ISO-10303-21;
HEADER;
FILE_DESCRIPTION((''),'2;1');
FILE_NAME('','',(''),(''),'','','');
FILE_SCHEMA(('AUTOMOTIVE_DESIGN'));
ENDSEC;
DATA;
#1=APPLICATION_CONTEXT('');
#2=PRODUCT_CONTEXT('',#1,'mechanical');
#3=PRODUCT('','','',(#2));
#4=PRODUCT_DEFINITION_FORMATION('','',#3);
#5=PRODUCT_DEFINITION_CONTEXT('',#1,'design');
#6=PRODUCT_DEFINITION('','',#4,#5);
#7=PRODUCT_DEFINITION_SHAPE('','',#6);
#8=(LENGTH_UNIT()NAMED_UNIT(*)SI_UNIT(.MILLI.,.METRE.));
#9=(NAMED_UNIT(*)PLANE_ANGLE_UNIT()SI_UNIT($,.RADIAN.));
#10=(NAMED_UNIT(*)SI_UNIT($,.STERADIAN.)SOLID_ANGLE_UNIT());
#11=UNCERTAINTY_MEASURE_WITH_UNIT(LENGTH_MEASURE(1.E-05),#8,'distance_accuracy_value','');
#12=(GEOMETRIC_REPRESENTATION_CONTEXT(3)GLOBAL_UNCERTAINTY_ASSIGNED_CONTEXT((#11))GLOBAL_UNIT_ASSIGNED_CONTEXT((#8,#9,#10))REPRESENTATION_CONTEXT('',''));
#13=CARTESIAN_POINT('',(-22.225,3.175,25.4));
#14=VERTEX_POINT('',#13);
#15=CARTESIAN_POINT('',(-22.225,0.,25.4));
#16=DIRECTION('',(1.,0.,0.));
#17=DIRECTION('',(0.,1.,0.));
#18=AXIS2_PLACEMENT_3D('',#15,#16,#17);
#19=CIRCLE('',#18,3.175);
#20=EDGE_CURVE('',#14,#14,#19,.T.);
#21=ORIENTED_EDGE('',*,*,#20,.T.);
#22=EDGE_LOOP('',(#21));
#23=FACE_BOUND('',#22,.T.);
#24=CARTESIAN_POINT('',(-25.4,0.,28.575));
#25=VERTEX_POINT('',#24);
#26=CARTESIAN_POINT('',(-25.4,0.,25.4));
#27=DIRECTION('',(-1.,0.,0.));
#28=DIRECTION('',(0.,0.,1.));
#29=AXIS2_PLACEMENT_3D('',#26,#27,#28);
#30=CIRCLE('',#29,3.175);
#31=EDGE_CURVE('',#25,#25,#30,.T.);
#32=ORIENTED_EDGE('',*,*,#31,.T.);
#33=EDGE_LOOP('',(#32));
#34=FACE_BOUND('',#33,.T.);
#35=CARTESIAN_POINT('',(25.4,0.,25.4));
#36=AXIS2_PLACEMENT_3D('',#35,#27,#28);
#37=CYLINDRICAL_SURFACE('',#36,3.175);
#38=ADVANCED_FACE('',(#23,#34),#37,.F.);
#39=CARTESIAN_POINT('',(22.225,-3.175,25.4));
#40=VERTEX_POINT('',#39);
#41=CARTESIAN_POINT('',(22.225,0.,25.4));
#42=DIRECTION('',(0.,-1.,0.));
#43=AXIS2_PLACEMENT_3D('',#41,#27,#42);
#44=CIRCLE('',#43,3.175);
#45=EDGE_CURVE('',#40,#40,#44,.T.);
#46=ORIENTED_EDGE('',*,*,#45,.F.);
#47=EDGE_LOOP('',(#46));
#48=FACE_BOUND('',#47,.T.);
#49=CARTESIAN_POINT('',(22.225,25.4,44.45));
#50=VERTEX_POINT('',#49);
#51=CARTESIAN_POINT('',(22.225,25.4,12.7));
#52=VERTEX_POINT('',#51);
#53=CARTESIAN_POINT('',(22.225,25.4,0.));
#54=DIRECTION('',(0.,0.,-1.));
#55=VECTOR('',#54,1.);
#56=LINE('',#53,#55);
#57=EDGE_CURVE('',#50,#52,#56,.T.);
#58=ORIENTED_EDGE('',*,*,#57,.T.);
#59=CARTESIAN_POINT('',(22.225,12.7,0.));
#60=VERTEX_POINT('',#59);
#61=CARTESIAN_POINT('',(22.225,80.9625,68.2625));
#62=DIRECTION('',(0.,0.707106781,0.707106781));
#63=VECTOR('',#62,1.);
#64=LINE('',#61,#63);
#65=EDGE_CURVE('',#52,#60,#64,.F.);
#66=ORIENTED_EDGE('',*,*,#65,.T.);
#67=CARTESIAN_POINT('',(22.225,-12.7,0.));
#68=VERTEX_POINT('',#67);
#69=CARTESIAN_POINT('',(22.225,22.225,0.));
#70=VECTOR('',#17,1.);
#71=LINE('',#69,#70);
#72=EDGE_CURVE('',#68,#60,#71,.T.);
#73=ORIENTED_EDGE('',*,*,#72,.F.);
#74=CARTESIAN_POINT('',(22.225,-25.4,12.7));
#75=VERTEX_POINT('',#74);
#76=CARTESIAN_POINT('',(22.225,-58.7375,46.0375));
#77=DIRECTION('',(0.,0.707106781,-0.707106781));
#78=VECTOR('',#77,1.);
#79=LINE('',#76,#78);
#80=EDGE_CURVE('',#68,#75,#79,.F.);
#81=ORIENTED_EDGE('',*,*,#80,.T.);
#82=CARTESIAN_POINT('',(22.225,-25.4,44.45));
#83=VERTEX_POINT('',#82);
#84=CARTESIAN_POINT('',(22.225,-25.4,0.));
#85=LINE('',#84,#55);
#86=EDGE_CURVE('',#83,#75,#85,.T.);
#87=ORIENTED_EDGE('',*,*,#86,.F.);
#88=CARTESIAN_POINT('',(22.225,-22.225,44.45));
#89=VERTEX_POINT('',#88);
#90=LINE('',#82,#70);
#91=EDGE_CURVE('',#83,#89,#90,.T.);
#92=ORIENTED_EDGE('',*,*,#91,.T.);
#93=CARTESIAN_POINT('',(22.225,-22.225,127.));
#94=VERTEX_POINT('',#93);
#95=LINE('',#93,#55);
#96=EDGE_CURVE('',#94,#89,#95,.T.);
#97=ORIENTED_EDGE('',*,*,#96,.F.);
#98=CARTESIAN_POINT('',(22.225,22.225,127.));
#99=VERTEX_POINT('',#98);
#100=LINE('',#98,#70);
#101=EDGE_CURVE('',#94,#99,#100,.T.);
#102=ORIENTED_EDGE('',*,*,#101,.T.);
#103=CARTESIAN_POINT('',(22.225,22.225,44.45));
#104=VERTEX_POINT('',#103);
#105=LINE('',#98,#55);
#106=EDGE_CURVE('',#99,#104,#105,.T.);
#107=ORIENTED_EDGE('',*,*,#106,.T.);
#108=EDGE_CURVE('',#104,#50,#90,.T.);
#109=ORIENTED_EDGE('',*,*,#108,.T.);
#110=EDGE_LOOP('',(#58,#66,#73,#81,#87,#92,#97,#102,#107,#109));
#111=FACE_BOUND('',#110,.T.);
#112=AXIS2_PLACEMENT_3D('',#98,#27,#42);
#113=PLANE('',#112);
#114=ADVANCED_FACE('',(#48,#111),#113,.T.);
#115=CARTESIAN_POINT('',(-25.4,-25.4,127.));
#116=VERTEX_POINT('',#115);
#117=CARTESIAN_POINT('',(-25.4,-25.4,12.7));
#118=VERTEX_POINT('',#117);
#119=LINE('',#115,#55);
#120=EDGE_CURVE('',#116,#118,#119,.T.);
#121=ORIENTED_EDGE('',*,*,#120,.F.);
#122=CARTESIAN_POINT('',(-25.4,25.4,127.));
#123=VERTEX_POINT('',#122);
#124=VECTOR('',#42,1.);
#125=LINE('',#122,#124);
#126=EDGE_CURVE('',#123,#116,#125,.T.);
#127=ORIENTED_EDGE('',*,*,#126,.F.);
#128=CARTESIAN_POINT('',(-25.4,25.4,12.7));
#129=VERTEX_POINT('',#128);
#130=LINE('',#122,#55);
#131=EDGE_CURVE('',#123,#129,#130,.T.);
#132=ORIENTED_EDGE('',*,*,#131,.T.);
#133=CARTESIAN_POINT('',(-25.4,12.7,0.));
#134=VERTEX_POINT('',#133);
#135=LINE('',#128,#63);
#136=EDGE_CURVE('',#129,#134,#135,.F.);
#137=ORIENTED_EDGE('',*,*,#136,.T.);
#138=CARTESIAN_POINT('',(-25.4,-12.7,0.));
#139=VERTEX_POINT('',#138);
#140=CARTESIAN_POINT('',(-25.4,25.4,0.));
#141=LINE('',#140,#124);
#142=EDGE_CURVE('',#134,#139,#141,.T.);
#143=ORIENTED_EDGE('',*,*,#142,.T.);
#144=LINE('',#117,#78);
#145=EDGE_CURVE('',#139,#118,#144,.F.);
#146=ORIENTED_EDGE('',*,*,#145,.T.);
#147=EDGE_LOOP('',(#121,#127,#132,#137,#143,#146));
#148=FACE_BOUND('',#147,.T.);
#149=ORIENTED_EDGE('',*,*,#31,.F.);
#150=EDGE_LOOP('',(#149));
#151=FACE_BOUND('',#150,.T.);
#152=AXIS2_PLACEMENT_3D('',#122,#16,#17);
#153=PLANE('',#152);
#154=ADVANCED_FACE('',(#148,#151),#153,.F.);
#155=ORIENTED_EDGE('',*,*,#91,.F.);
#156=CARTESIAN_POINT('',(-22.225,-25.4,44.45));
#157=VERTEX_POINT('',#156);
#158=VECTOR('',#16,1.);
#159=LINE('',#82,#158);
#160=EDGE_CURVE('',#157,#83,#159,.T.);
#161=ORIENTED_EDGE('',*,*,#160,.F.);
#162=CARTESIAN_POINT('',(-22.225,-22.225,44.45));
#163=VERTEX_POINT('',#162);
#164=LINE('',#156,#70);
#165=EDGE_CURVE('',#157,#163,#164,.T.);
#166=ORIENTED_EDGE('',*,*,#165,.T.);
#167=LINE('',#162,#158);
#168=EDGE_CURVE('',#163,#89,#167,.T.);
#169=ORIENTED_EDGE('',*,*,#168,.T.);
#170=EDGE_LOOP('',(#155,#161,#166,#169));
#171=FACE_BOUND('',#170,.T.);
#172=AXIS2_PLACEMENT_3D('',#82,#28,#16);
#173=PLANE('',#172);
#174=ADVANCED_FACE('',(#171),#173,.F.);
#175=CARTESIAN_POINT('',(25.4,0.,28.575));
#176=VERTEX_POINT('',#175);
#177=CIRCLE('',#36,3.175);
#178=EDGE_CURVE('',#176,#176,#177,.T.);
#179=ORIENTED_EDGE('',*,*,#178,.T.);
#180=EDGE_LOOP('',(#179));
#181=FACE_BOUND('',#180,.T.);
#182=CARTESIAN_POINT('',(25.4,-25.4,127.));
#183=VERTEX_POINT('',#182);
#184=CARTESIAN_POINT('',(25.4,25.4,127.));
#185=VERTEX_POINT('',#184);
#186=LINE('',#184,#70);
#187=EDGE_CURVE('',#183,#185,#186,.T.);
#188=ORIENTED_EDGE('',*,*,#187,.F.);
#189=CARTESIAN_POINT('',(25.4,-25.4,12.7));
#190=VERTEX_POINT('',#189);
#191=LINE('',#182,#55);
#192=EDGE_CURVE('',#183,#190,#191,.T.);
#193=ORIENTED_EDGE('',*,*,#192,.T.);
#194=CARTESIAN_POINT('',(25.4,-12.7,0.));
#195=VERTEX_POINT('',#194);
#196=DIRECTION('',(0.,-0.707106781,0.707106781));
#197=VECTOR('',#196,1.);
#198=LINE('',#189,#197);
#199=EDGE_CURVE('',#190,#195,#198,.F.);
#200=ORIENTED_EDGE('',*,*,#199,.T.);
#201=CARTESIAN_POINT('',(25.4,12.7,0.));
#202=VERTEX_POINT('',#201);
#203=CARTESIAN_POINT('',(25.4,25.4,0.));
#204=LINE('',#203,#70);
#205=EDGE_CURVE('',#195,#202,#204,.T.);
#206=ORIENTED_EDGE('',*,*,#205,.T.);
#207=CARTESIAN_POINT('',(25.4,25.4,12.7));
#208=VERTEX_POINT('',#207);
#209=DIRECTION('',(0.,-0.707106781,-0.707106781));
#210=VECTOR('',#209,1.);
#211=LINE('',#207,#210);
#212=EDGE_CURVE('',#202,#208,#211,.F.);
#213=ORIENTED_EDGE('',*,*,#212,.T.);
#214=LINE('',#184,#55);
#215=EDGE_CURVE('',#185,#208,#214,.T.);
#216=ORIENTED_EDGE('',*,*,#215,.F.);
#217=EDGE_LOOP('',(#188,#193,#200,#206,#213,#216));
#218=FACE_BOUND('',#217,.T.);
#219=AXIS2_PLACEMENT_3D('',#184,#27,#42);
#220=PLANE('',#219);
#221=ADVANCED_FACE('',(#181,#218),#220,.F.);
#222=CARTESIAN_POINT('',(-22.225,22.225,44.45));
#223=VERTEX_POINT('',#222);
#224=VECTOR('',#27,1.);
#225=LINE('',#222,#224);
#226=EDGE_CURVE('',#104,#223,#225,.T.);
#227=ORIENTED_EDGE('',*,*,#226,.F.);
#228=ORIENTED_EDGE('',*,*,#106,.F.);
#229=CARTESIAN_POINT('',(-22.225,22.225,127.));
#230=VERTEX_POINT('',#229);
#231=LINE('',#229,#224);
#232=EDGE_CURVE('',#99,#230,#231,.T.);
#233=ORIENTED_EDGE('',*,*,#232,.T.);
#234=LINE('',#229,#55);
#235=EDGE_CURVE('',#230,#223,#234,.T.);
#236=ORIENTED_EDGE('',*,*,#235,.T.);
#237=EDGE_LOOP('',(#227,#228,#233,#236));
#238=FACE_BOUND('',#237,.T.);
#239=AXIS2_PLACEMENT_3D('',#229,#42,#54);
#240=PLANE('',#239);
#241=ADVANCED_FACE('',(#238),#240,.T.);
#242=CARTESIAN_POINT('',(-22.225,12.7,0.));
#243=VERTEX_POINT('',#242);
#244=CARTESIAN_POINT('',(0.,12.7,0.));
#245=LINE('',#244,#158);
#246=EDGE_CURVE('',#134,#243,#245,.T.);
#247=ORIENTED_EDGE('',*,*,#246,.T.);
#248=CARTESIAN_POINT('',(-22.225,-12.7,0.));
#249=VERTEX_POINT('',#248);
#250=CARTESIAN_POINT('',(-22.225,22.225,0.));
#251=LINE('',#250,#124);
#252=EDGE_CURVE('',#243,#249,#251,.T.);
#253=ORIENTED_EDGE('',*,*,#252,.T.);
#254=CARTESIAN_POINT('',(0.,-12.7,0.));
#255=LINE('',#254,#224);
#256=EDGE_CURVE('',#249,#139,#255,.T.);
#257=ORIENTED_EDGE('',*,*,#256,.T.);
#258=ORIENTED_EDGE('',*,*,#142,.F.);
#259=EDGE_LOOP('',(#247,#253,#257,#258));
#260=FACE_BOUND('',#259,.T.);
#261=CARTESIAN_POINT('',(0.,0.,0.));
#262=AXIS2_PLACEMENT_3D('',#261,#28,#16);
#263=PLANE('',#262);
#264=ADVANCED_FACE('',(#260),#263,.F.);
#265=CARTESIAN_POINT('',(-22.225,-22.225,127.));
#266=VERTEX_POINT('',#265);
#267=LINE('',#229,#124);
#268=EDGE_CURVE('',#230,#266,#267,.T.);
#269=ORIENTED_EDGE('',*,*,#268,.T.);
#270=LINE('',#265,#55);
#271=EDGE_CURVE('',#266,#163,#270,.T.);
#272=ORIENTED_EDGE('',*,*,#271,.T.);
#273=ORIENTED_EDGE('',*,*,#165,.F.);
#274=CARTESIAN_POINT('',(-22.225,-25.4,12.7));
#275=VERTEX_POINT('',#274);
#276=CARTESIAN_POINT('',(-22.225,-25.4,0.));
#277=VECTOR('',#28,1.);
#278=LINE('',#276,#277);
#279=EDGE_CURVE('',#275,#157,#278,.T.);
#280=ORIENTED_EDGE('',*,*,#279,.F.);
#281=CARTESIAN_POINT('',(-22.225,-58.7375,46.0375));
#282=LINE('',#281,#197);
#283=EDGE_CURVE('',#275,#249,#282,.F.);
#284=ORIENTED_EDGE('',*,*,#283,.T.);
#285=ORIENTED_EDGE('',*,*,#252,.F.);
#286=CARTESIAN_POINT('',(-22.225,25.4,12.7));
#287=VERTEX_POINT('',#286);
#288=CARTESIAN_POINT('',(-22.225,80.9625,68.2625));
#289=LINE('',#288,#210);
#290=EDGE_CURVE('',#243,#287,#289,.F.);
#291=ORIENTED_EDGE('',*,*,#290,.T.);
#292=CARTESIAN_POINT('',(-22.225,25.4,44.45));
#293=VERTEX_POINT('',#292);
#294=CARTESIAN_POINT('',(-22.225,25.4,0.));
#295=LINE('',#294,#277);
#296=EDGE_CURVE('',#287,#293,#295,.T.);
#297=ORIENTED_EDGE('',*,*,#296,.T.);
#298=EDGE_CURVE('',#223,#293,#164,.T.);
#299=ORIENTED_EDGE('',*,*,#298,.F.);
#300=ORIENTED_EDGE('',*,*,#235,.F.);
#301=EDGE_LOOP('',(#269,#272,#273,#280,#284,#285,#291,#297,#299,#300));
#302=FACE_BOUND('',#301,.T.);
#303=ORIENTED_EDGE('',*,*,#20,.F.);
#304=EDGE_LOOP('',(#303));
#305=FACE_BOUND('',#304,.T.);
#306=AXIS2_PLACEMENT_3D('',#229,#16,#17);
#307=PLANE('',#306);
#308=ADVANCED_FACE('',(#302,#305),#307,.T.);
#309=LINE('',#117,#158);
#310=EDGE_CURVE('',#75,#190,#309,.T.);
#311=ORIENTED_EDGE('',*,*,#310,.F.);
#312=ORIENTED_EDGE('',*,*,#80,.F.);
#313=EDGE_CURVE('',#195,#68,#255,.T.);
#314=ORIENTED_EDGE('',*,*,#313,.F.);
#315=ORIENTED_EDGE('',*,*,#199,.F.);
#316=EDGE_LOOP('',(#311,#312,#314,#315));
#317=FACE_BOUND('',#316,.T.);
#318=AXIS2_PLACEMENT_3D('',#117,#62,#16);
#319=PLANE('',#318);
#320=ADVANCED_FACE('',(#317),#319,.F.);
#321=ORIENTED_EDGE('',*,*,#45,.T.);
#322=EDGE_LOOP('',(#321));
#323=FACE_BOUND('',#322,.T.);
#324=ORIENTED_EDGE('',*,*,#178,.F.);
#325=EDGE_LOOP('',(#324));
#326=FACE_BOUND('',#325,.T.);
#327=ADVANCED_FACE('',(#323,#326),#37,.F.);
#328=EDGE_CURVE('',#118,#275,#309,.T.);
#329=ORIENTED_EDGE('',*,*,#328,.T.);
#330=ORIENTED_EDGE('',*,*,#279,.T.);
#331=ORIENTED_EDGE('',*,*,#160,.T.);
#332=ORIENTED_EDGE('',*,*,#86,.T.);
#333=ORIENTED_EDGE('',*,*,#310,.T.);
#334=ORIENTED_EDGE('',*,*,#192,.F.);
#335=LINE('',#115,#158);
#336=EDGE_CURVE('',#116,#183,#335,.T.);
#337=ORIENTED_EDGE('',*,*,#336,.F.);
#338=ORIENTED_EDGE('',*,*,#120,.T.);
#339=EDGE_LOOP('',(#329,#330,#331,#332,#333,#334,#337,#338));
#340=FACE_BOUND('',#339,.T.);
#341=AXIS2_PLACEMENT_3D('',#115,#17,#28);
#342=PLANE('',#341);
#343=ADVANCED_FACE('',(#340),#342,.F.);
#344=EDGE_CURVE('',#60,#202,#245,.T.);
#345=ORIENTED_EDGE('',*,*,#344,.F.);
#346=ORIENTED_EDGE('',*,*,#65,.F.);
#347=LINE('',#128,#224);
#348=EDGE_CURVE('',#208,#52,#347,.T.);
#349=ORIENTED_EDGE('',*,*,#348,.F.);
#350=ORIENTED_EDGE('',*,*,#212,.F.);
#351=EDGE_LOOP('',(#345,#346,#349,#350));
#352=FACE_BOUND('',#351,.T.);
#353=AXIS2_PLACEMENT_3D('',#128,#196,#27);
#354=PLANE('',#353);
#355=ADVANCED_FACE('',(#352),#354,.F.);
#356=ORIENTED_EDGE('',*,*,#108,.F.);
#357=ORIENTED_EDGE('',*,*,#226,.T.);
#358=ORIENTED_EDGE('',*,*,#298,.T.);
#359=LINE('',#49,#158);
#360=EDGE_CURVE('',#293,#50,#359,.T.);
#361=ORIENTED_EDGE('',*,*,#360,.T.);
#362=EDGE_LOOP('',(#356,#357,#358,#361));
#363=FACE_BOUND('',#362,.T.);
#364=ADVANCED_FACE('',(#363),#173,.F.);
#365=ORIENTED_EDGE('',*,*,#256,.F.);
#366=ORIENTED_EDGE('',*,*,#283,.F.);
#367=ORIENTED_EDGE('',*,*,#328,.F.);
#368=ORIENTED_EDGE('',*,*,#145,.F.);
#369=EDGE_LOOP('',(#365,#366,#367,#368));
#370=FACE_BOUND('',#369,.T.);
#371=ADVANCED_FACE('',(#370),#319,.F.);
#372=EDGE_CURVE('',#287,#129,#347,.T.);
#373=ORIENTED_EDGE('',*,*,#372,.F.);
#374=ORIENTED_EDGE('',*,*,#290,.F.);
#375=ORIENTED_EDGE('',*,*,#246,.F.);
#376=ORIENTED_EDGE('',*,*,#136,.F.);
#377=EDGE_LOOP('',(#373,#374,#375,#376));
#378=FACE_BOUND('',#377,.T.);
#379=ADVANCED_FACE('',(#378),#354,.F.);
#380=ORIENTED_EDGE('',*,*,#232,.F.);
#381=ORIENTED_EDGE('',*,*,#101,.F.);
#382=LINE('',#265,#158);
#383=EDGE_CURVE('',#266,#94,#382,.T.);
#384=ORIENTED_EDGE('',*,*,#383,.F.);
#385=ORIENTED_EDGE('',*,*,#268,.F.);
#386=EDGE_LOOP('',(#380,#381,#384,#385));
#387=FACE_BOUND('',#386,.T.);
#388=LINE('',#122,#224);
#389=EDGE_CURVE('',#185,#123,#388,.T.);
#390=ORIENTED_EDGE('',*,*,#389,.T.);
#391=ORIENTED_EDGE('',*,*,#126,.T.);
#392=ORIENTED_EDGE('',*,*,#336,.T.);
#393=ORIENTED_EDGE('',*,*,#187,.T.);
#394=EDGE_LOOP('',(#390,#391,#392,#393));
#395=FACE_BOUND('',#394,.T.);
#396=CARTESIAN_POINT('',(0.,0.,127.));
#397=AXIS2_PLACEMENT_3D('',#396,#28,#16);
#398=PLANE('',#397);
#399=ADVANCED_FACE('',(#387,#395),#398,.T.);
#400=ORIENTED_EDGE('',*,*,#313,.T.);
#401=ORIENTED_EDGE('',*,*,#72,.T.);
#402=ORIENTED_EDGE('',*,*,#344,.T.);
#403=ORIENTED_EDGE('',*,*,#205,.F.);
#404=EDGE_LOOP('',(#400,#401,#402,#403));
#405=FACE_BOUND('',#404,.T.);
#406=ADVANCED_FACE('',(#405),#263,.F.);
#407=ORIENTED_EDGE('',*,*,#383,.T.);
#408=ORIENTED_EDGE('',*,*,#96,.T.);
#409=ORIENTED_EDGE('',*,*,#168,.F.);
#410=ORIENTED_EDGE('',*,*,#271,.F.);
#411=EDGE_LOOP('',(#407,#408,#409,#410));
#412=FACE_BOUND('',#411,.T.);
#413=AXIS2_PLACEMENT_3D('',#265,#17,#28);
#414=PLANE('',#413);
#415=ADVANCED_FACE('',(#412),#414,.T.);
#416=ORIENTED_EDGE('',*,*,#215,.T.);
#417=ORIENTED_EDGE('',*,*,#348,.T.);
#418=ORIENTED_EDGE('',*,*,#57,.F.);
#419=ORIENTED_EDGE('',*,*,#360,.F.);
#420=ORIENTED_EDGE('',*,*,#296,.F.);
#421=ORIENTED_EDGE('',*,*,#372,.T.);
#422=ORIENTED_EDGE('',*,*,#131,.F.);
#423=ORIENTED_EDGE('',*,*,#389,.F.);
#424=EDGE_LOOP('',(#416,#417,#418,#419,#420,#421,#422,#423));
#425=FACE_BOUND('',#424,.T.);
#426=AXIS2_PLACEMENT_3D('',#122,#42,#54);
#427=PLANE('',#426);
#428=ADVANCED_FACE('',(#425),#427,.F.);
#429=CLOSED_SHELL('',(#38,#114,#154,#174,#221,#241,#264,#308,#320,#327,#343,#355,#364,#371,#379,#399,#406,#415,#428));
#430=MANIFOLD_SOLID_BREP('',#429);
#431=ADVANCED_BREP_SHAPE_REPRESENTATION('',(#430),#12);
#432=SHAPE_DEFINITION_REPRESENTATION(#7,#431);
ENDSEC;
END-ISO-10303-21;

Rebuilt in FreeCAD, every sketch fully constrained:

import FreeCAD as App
import Part
import Sketcher
from FreeCAD import Vector
Q = App.Units.Quantity


def edges_at(feature, points):
    """Names of the edges that pass closest to the given points."""
    edges = feature.Shape.Edges
    near = lambda p: min(range(len(edges)), key=lambda i: edges[i].distToShape(Part.Vertex(*p))[0])
    return sorted({f"Edge{near(p) + 1}" for p in points})

doc = App.newDocument("Part")
body = doc.addObject("PartDesign::Body", "Body")

sketch1 = doc.addObject("Sketcher::SketchObject", "Sketch")
body.addObject(sketch1)
sketch1.AttachmentSupport = (doc.XY_Plane, [""])
sketch1.MapMode = "FlatFace"
sketch1.addGeometry([
    Part.LineSegment(Vector(-25.4, 25.4, 0), Vector(-25.4, -25.4, 0)),
    Part.LineSegment(Vector(-25.4, -25.4, 0), Vector(25.4, -25.4, 0)),
    Part.LineSegment(Vector(25.4, -25.4, 0), Vector(25.4, 25.4, 0)),
    Part.LineSegment(Vector(25.4, 25.4, 0), Vector(-25.4, 25.4, 0)),
    Part.LineSegment(Vector(22.225, -22.225, 0), Vector(-22.225, -22.225, 0)),
    Part.LineSegment(Vector(-22.225, -22.225, 0), Vector(-22.225, 22.225, 0)),
    Part.LineSegment(Vector(-22.225, 22.225, 0), Vector(22.225, 22.225, 0)),
    Part.LineSegment(Vector(22.225, 22.225, 0), Vector(22.225, -22.225, 0)),
], False)
sketch1.addConstraint([
    Sketcher.Constraint("Coincident", 0, 2, 1, 1),
    Sketcher.Constraint("Coincident", 1, 2, 2, 1),
    Sketcher.Constraint("Coincident", 2, 2, 3, 1),
    Sketcher.Constraint("Coincident", 3, 2, 0, 1),
    Sketcher.Constraint("Coincident", 4, 2, 5, 1),
    Sketcher.Constraint("Coincident", 5, 2, 6, 1),
    Sketcher.Constraint("Coincident", 6, 2, 7, 1),
    Sketcher.Constraint("Coincident", 7, 2, 4, 1),
    Sketcher.Constraint("Vertical", 0),
    Sketcher.Constraint("Horizontal", 1),
    Sketcher.Constraint("Vertical", 2),
    Sketcher.Constraint("Horizontal", 3),
    Sketcher.Constraint("Horizontal", 4),
    Sketcher.Constraint("Vertical", 5),
    Sketcher.Constraint("Horizontal", 6),
    Sketcher.Constraint("Vertical", 7),
    Sketcher.Constraint("Symmetric", 0, 2, 2, 2, -1, 1),
    Sketcher.Constraint("Symmetric", 4, 2, 6, 2, -1, 1),
    Sketcher.Constraint("Equal", 3, 0),
    Sketcher.Constraint("Equal", 6, 5),
    Sketcher.Constraint("DistanceX", 1, 1, 1, 2, Q("2 in")),
    Sketcher.Constraint("DistanceX", 4, 2, 4, 1, Q("1.75 in")),
])
pad1 = doc.addObject("PartDesign::Pad", "Pad")
body.addObject(pad1)
pad1.Profile = sketch1
pad1.Length = Q("5 in")

sketch2 = doc.addObject("Sketcher::SketchObject", "Sketch001")
body.addObject(sketch2)
sketch2.AttachmentSupport = (doc.YZ_Plane, [""])
sketch2.MapMode = "FlatFace"
sketch2.AttachmentOffset = App.Placement(Vector(0, 0, -1 * 25.4), App.Rotation())
sketch2.addGeometry(Part.Circle(Vector(0, 25.4, 0), Vector(0, 0, 1), 3.175), False)
sketch2.addConstraint([
    Sketcher.Constraint("PointOnObject", 0, 3, -2),
    Sketcher.Constraint("Diameter", 0, Q("0.25 in")),
    Sketcher.Constraint("DistanceY", -1, 1, 0, 3, Q("1 in")),
])
pocket1 = doc.addObject("PartDesign::Pocket", "Pocket")
body.addObject(pocket1)
pocket1.Profile = sketch2
pocket1.Type = "ThroughAll"
pocket1.Reversed = True

sketch3 = doc.addObject("Sketcher::SketchObject", "Sketch002")
body.addObject(sketch3)
sketch3.AttachmentSupport = (doc.XZ_Plane, [""])
sketch3.MapMode = "FlatFace"
sketch3.AttachmentOffset = App.Placement(Vector(0, 0, -1 * 25.4), App.Rotation())
sketch3.addGeometry([
    Part.LineSegment(Vector(-22.225, 0, 0), Vector(-22.225, 44.45, 0)),
    Part.LineSegment(Vector(-22.225, 44.45, 0), Vector(22.225, 44.45, 0)),
    Part.LineSegment(Vector(22.225, 44.45, 0), Vector(22.225, 0, 0)),
    Part.LineSegment(Vector(22.225, 0, 0), Vector(-22.225, 0, 0)),
], False)
sketch3.addConstraint([
    Sketcher.Constraint("Coincident", 0, 2, 1, 1),
    Sketcher.Constraint("Coincident", 1, 2, 2, 1),
    Sketcher.Constraint("Coincident", 2, 2, 3, 1),
    Sketcher.Constraint("Coincident", 3, 2, 0, 1),
    Sketcher.Constraint("Vertical", 0),
    Sketcher.Constraint("Horizontal", 1),
    Sketcher.Constraint("Vertical", 2),
    Sketcher.Constraint("Horizontal", 3),
    Sketcher.Constraint("Symmetric", 2, 2, 3, 2, -1, 1),
    Sketcher.Constraint("Equal", 3, 0),
    Sketcher.Constraint("DistanceX", 1, 1, 1, 2, Q("1.75 in")),
])
pocket2 = doc.addObject("PartDesign::Pocket", "Pocket001")
body.addObject(pocket2)
pocket2.Profile = sketch3
pocket2.Type = "ThroughAll"
pocket2.Reversed = True
doc.recompute()

chamfer = doc.addObject("PartDesign::Chamfer", "Chamfer")
body.addObject(chamfer)
chamfer.Base = (pocket2, edges_at(pocket2, [
    (23.812, -25.4, 0),
    (-23.812, 25.4, 0),
    (-23.812, -25.4, 0),
    (23.812, 25.4, 0),
]))
chamfer.Size = Q("0.5 in")

doc.recompute()
